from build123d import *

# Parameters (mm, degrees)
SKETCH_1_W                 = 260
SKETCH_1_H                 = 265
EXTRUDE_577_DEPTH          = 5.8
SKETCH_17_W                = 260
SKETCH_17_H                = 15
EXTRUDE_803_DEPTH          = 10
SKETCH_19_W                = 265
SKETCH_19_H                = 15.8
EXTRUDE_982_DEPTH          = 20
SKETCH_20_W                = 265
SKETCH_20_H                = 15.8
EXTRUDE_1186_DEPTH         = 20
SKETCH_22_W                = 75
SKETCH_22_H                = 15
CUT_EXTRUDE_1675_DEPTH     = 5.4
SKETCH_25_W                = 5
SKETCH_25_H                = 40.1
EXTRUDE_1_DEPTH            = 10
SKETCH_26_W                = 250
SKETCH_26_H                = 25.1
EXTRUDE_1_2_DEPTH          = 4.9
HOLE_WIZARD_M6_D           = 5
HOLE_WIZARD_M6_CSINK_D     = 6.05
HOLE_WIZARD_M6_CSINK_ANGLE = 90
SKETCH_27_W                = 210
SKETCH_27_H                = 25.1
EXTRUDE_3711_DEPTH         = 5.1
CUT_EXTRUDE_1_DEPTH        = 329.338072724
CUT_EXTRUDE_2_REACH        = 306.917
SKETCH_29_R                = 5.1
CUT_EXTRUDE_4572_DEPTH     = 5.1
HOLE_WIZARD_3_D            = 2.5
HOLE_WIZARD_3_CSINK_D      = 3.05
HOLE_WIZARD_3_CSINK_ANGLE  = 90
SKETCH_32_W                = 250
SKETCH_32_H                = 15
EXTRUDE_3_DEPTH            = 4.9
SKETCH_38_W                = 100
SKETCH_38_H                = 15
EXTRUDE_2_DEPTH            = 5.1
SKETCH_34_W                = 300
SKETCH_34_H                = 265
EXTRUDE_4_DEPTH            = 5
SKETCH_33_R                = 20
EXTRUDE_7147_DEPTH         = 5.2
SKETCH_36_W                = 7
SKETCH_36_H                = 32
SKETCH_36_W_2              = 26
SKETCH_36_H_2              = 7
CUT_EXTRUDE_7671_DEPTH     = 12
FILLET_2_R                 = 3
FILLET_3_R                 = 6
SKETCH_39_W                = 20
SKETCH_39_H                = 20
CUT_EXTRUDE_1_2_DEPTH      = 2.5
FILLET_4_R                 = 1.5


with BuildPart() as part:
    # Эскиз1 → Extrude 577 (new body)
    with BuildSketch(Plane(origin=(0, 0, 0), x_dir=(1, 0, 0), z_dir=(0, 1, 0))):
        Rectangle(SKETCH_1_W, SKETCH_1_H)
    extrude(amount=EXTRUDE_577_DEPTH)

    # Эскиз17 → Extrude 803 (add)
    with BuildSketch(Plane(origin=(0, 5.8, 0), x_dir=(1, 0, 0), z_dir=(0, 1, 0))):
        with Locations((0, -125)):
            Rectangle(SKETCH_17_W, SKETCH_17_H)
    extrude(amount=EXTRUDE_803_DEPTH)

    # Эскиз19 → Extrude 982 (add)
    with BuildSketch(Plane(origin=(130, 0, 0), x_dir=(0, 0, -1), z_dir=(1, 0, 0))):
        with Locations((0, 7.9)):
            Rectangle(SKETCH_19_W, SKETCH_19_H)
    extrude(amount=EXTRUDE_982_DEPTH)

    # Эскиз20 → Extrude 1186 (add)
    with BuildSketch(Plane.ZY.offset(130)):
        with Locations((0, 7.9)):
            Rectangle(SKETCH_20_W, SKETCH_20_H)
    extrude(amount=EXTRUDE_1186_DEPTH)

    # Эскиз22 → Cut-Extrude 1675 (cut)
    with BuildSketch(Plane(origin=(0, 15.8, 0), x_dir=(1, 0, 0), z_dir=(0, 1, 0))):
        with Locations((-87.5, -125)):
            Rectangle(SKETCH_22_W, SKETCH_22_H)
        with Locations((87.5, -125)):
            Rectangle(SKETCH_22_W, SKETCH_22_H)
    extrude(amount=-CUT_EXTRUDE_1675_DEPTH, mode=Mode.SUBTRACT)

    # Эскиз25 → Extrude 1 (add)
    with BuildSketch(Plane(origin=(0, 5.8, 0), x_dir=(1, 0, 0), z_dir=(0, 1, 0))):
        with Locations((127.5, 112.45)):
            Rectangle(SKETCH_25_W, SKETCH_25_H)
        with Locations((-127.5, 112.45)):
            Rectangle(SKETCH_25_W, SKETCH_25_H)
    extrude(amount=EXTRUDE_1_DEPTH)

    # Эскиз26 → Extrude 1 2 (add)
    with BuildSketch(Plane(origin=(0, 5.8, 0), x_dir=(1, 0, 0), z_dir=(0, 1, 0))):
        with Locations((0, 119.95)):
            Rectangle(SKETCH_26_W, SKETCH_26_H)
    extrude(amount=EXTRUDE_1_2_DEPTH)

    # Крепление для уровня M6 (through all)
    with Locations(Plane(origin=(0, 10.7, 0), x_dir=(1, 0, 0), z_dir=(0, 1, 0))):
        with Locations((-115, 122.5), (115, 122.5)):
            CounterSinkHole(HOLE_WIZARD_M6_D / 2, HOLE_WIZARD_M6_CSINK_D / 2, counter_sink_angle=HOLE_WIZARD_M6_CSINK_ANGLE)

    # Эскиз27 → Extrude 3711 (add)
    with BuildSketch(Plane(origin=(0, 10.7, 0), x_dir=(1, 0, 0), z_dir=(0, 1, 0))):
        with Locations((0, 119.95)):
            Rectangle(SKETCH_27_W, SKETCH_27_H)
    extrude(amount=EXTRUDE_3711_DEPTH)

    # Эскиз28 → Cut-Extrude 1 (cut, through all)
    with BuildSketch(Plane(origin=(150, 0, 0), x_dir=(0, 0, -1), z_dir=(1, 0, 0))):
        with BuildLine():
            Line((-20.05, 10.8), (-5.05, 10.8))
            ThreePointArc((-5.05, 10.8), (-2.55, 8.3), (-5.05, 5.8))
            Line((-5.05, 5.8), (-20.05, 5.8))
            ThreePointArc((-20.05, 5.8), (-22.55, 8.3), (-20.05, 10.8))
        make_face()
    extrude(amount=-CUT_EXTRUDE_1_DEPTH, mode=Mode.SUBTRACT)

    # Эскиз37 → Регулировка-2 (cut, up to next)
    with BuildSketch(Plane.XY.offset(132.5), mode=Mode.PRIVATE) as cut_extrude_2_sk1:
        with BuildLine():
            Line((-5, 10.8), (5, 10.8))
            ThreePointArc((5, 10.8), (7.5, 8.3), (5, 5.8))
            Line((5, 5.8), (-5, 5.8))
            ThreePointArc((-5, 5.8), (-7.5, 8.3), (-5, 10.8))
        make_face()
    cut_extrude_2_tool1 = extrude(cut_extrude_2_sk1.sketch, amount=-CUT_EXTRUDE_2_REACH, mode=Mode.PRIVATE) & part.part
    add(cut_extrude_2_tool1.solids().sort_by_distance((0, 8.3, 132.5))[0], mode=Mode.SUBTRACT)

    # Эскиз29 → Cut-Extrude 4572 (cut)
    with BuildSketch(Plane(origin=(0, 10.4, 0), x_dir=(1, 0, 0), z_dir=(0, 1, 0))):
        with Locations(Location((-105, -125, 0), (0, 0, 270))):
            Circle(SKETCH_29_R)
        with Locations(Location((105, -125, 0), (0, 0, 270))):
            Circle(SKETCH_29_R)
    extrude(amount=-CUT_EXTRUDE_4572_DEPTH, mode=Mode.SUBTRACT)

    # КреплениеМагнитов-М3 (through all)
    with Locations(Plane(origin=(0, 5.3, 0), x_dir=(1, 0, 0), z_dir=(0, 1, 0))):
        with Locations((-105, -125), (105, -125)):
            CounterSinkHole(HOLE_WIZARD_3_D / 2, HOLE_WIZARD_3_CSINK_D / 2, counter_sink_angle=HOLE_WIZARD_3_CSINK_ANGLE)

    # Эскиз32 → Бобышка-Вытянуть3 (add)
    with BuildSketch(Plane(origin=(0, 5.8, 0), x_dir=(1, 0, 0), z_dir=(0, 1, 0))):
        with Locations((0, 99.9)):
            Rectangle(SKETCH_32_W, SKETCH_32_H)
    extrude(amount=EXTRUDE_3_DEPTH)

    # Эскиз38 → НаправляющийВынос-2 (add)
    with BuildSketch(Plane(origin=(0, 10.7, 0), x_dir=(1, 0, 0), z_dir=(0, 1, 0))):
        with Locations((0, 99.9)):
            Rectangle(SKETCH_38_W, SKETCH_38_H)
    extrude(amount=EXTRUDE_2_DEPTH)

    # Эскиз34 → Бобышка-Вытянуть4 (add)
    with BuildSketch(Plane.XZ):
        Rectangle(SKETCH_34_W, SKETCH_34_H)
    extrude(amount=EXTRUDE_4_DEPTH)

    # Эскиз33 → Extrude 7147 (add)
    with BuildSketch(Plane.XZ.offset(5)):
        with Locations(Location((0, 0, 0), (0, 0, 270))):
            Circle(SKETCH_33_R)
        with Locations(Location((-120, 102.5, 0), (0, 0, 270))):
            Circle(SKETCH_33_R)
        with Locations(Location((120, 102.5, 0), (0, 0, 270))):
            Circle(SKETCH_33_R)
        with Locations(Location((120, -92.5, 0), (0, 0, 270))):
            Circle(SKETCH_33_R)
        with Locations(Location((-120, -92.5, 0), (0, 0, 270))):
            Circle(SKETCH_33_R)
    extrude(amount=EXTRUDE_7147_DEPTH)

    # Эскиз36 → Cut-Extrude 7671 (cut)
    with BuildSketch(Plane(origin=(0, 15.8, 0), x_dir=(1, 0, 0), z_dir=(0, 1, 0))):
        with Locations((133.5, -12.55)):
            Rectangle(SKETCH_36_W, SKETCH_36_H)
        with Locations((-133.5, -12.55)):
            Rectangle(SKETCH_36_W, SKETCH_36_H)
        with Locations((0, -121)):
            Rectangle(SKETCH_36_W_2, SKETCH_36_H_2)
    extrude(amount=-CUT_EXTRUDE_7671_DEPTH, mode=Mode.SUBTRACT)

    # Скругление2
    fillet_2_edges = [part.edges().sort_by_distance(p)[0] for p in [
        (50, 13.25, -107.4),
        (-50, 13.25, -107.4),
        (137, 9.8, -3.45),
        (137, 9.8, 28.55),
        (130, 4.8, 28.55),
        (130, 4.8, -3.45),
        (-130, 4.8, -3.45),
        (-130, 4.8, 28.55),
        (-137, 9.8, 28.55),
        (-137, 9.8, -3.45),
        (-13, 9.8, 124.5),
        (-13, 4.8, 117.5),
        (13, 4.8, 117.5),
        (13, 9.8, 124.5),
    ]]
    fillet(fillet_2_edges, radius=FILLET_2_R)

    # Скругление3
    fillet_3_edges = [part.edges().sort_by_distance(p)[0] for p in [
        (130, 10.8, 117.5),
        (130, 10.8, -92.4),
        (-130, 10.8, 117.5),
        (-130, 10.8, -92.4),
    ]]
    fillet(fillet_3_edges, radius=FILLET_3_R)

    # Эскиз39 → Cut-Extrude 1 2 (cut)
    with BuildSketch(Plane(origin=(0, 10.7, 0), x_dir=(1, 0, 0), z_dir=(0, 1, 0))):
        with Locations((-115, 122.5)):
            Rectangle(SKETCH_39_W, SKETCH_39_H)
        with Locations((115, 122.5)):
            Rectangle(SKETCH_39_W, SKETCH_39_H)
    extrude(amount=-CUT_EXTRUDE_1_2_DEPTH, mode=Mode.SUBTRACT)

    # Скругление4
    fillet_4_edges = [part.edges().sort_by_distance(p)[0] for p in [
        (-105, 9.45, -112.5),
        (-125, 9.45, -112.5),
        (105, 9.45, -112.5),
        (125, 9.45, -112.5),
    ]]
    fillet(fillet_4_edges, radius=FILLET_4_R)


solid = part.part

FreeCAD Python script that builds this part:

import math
import FreeCAD as App
import Part
import Sketcher

V = App.Vector


def edges_at(feature, points):
    """Names of the edges that pass closest to the given points."""
    edges = feature.Shape.Edges
    near = lambda p: min(range(len(edges)), key=lambda i: edges[i].distToShape(Part.Vertex(*p))[0])
    return sorted({f"Edge{near(p) + 1}" for p in points})

doc = App.newDocument("Part")
body = doc.addObject("PartDesign::Body", "Body")

sketch1 = doc.addObject("Sketcher::SketchObject", "Sketch")
body.addObject(sketch1)
sketch1.AttachmentSupport = (doc.XZ_Plane, [""])
sketch1.MapMode = "FlatFace"
sketch1.addGeometry(Part.LineSegment(V(-130, -132.5, 0), V(-130, 132.5, 0)), False)
sketch1.addGeometry(Part.LineSegment(V(-130, 132.5, 0), V(130, 132.5, 0)), False)
sketch1.addGeometry(Part.LineSegment(V(130, 132.5, 0), V(130, -132.5, 0)), False)
sketch1.addGeometry(Part.LineSegment(V(130, -132.5, 0), V(-130, -132.5, 0)), False)
sketch1.addConstraint(Sketcher.Constraint("Coincident", 0, 2, 1, 1))
sketch1.addConstraint(Sketcher.Constraint("Coincident", 1, 2, 2, 1))
sketch1.addConstraint(Sketcher.Constraint("Coincident", 2, 2, 3, 1))
sketch1.addConstraint(Sketcher.Constraint("Coincident", 3, 2, 0, 1))
sketch1.addConstraint(Sketcher.Constraint("Vertical", 0))
sketch1.addConstraint(Sketcher.Constraint("Horizontal", 1))
sketch1.addConstraint(Sketcher.Constraint("Vertical", 2))
sketch1.addConstraint(Sketcher.Constraint("Horizontal", 3))
sketch1.addConstraint(Sketcher.Constraint("Symmetric", 0, 2, 2, 2, -1, 1))
sketch1.addConstraint(Sketcher.Constraint("DistanceX", 1, 1, 1, 2, 260.0))
sketch1.addConstraint(Sketcher.Constraint("DistanceY", 0, 1, 0, 2, 265.0))
pad1 = doc.addObject("PartDesign::Pad", "Pad")
body.addObject(pad1)
pad1.Profile = sketch1
pad1.Length = 5.8
pad1.Reversed = True

sketch2 = doc.addObject("Sketcher::SketchObject", "Sketch001")
body.addObject(sketch2)
sketch2.AttachmentSupport = (doc.XZ_Plane, [""])
sketch2.MapMode = "FlatFace"
sketch2.AttachmentOffset = App.Placement(V(0, 0, -5.8), App.Rotation())
sketch2.addGeometry(Part.LineSegment(V(-130, 117.5, 0), V(-130, 132.5, 0)), False)
sketch2.addGeometry(Part.LineSegment(V(-130, 132.5, 0), V(130, 132.5, 0)), False)
sketch2.addGeometry(Part.LineSegment(V(130, 132.5, 0), V(130, 117.5, 0)), False)
sketch2.addGeometry(Part.LineSegment(V(130, 117.5, 0), V(-130, 117.5, 0)), False)
sketch2.addConstraint(Sketcher.Constraint("Coincident", 0, 2, 1, 1))
sketch2.addConstraint(Sketcher.Constraint("Coincident", 1, 2, 2, 1))
sketch2.addConstraint(Sketcher.Constraint("Coincident", 2, 2, 3, 1))
sketch2.addConstraint(Sketcher.Constraint("Coincident", 3, 2, 0, 1))
sketch2.addConstraint(Sketcher.Constraint("Vertical", 0))
sketch2.addConstraint(Sketcher.Constraint("Horizontal", 1))
sketch2.addConstraint(Sketcher.Constraint("Vertical", 2))
sketch2.addConstraint(Sketcher.Constraint("Horizontal", 3))
sketch2.addConstraint(Sketcher.Constraint("DistanceX", 1, 1, 1, 2, 260.0))
sketch2.addConstraint(Sketcher.Constraint("DistanceY", 0, 1, 0, 2, 15.0))
sketch2.addConstraint(Sketcher.Constraint("DistanceX", 0, 2, -1, 1, 130.0))
sketch2.addConstraint(Sketcher.Constraint("DistanceY", -1, 1, 0, 2, 132.5))
pad2 = doc.addObject("PartDesign::Pad", "Pad001")
body.addObject(pad2)
pad2.Profile = sketch2
pad2.Length = 10
pad2.Reversed = True

sketch3 = doc.addObject("Sketcher::SketchObject", "Sketch002")
body.addObject(sketch3)
sketch3.AttachmentSupport = (doc.YZ_Plane, [""])
sketch3.MapMode = "FlatFace"
sketch3.AttachmentOffset = App.Placement(V(0, 0, 130), App.Rotation())
sketch3.addGeometry(Part.LineSegment(V(15.8, 132.5, 0), V(0, 132.5, 0)), False)
sketch3.addGeometry(Part.LineSegment(V(0, 132.5, 0), V(0, -132.5, 0)), False)
sketch3.addGeometry(Part.LineSegment(V(0, -132.5, 0), V(15.8, -132.5, 0)), False)
sketch3.addGeometry(Part.LineSegment(V(15.8, -132.5, 0), V(15.8, 132.5, 0)), False)
sketch3.addConstraint(Sketcher.Constraint("Coincident", 0, 2, 1, 1))
sketch3.addConstraint(Sketcher.Constraint("Coincident", 1, 2, 2, 1))
sketch3.addConstraint(Sketcher.Constraint("Coincident", 2, 2, 3, 1))
sketch3.addConstraint(Sketcher.Constraint("Coincident", 3, 2, 0, 1))
sketch3.addConstraint(Sketcher.Constraint("Horizontal", 0))
sketch3.addConstraint(Sketcher.Constraint("Vertical", 1))
sketch3.addConstraint(Sketcher.Constraint("Horizontal", 2))
sketch3.addConstraint(Sketcher.Constraint("Vertical", 3))
sketch3.addConstraint(Sketcher.Constraint("Symmetric", 0, 2, 1, 2, -1, 1))
sketch3.addConstraint(Sketcher.Constraint("DistanceY", 1, 2, 1, 1, 265.0))
sketch3.addConstraint(Sketcher.Constraint("DistanceX", 0, 2, 0, 1, 15.8))
pad3 = doc.addObject("PartDesign::Pad", "Pad002")
body.addObject(pad3)
pad3.Profile = sketch3
pad3.Length = 20

sketch4 = doc.addObject("Sketcher::SketchObject", "Sketch003")
body.addObject(sketch4)
sketch4.AttachmentSupport = (doc.YZ_Plane, [""])
sketch4.MapMode = "FlatFace"
sketch4.AttachmentOffset = App.Placement(V(0, 0, -130), App.Rotation())
sketch4.addGeometry(Part.LineSegment(V(15.8, -132.5, 0), V(0, -132.5, 0)), False)
sketch4.addGeometry(Part.LineSegment(V(0, -132.5, 0), V(0, 132.5, 0)), False)
sketch4.addGeometry(Part.LineSegment(V(0, 132.5, 0), V(15.8, 132.5, 0)), False)
sketch4.addGeometry(Part.LineSegment(V(15.8, 132.5, 0), V(15.8, -132.5, 0)), False)
sketch4.addConstraint(Sketcher.Constraint("Coincident", 0, 2, 1, 1))
sketch4.addConstraint(Sketcher.Constraint("Coincident", 1, 2, 2, 1))
sketch4.addConstraint(Sketcher.Constraint("Coincident", 2, 2, 3, 1))
sketch4.addConstraint(Sketcher.Constraint("Coincident", 3, 2, 0, 1))
sketch4.addConstraint(Sketcher.Constraint("Horizontal", 0))
sketch4.addConstraint(Sketcher.Constraint("Vertical", 1))
sketch4.addConstraint(Sketcher.Constraint("Horizontal", 2))
sketch4.addConstraint(Sketcher.Constraint("Vertical", 3))
sketch4.addConstraint(Sketcher.Constraint("Symmetric", 0, 2, 1, 2, -1, 1))
sketch4.addConstraint(Sketcher.Constraint("DistanceY", 1, 1, 1, 2, 265.0))
sketch4.addConstraint(Sketcher.Constraint("DistanceX", 0, 2, 0, 1, 15.8))
pad4 = doc.addObject("PartDesign::Pad", "Pad003")
body.addObject(pad4)
pad4.Profile = sketch4
pad4.Length = 20
pad4.Reversed = True

sketch5 = doc.addObject("Sketcher::SketchObject", "Sketch004")
body.addObject(sketch5)
sketch5.AttachmentSupport = (doc.XZ_Plane, [""])
sketch5.MapMode = "FlatFace"
sketch5.AttachmentOffset = App.Placement(V(0, 0, -15.8), App.Rotation())
sketch5.addGeometry(Part.LineSegment(V(-125, 117.5, 0), V(-125, 132.5, 0)), False)
sketch5.addGeometry(Part.LineSegment(V(-125, 132.5, 0), V(-50, 132.5, 0)), False)
sketch5.addGeometry(Part.LineSegment(V(-50, 132.5, 0), V(-50, 117.5, 0)), False)
sketch5.addGeometry(Part.LineSegment(V(-50, 117.5, 0), V(-125, 117.5, 0)), False)
sketch5.addGeometry(Part.LineSegment(V(50, 117.5, 0), V(50, 132.5, 0)), False)
sketch5.addGeometry(Part.LineSegment(V(50, 132.5, 0), V(125, 132.5, 0)), False)
sketch5.addGeometry(Part.LineSegment(V(125, 132.5, 0), V(125, 117.5, 0)), False)
sketch5.addGeometry(Part.LineSegment(V(125, 117.5, 0), V(50, 117.5, 0)), False)
sketch5.addConstraint(Sketcher.Constraint("Coincident", 0, 2, 1, 1))
sketch5.addConstraint(Sketcher.Constraint("Coincident", 1, 2, 2, 1))
sketch5.addConstraint(Sketcher.Constraint("Coincident", 2, 2, 3, 1))
sketch5.addConstraint(Sketcher.Constraint("Coincident", 3, 2, 0, 1))
sketch5.addConstraint(Sketcher.Constraint("Coincident", 4, 2, 5, 1))
sketch5.addConstraint(Sketcher.Constraint("Coincident", 5, 2, 6, 1))
sketch5.addConstraint(Sketcher.Constraint("Coincident", 6, 2, 7, 1))
sketch5.addConstraint(Sketcher.Constraint("Coincident", 7, 2, 4, 1))
sketch5.addConstraint(Sketcher.Constraint("Vertical", 0))
sketch5.addConstraint(Sketcher.Constraint("Horizontal", 1))
sketch5.addConstraint(Sketcher.Constraint("Vertical", 2))
sketch5.addConstraint(Sketcher.Constraint("Horizontal", 3))
sketch5.addConstraint(Sketcher.Constraint("Vertical", 4))
sketch5.addConstraint(Sketcher.Constraint("Horizontal", 5))
sketch5.addConstraint(Sketcher.Constraint("Vertical", 6))
sketch5.addConstraint(Sketcher.Constraint("Horizontal", 7))
sketch5.addConstraint(Sketcher.Constraint("Symmetric", 1, 2, 4, 2, -2))
sketch5.addConstraint(Sketcher.Constraint("Symmetric", 3, 2, 6, 2, -2))
sketch5.addConstraint(Sketcher.Constraint("DistanceX", 1, 1, 1, 2, 75.0))
sketch5.addConstraint(Sketcher.Constraint("DistanceY", 0, 1, 0, 2, 15.0))
sketch5.addConstraint(Sketcher.Constraint("DistanceX", 0, 2, -1, 1, 125.0))
sketch5.addConstraint(Sketcher.Constraint("DistanceY", -1, 1, 0, 2, 132.5))
pocket1 = doc.addObject("PartDesign::Pocket", "Pocket")
body.addObject(pocket1)
pocket1.Profile = sketch5
pocket1.Length = 5.4
pocket1.Reversed = True

sketch6 = doc.addObject("Sketcher::SketchObject", "Sketch005")
body.addObject(sketch6)
sketch6.AttachmentSupport = (doc.XZ_Plane, [""])
sketch6.MapMode = "FlatFace"
sketch6.AttachmentOffset = App.Placement(V(0, 0, -5.8), App.Rotation())
sketch6.addGeometry(Part.LineSegment(V(125, -132.5, 0), V(125, -92.4, 0)), False)
sketch6.addGeometry(Part.LineSegment(V(125, -92.4, 0), V(130, -92.4, 0)), False)
sketch6.addGeometry(Part.LineSegment(V(130, -92.4, 0), V(130, -132.5, 0)), False)
sketch6.addGeometry(Part.LineSegment(V(130, -132.5, 0), V(125, -132.5, 0)), False)
sketch6.addGeometry(Part.LineSegment(V(-130, -132.5, 0), V(-130, -92.4, 0)), False)
sketch6.addGeometry(Part.LineSegment(V(-130, -92.4, 0), V(-125, -92.4, 0)), False)
sketch6.addGeometry(Part.LineSegment(V(-125, -92.4, 0), V(-125, -132.5, 0)), False)
sketch6.addGeometry(Part.LineSegment(V(-125, -132.5, 0), V(-130, -132.5, 0)), False)
sketch6.addConstraint(Sketcher.Constraint("Coincident", 0, 2, 1, 1))
sketch6.addConstraint(Sketcher.Constraint("Coincident", 1, 2, 2, 1))
sketch6.addConstraint(Sketcher.Constraint("Coincident", 2, 2, 3, 1))
sketch6.addConstraint(Sketcher.Constraint("Coincident", 3, 2, 0, 1))
sketch6.addConstraint(Sketcher.Constraint("Coincident", 4, 2, 5, 1))
sketch6.addConstraint(Sketcher.Constraint("Coincident", 5, 2, 6, 1))
sketch6.addConstraint(Sketcher.Constraint("Coincident", 6, 2, 7, 1))
sketch6.addConstraint(Sketcher.Constraint("Coincident", 7, 2, 4, 1))
sketch6.addConstraint(Sketcher.Constraint("Vertical", 0))
sketch6.addConstraint(Sketcher.Constraint("Horizontal", 1))
sketch6.addConstraint(Sketcher.Constraint("Vertical", 2))
sketch6.addConstraint(Sketcher.Constraint("Horizontal", 3))
sketch6.addConstraint(Sketcher.Constraint("Vertical", 4))
sketch6.addConstraint(Sketcher.Constraint("Horizontal", 5))
sketch6.addConstraint(Sketcher.Constraint("Vertical", 6))
sketch6.addConstraint(Sketcher.Constraint("Horizontal", 7))
sketch6.addConstraint(Sketcher.Constraint("Symmetric", 1, 2, 4, 2, -2))
sketch6.addConstraint(Sketcher.Constraint("Symmetric", 3, 2, 6, 2, -2))
sketch6.addConstraint(Sketcher.Constraint("DistanceX", 1, 1, 1, 2, 5.0))
sketch6.addConstraint(Sketcher.Constraint("DistanceY", 0, 1, 0, 2, 40.1))
sketch6.addConstraint(Sketcher.Constraint("DistanceX", -1, 1, 0, 2, 125.0))
sketch6.addConstraint(Sketcher.Constraint("DistanceY", 0, 2, -1, 1, 92.4))
pad5 = doc.addObject("PartDesign::Pad", "Pad004")
body.addObject(pad5)
pad5.Profile = sketch6
pad5.Length = 10
pad5.Reversed = True

sketch7 = doc.addObject("Sketcher::SketchObject", "Sketch006")
body.addObject(sketch7)
sketch7.AttachmentSupport = (doc.XZ_Plane, [""])
sketch7.MapMode = "FlatFace"
sketch7.AttachmentOffset = App.Placement(V(0, 0, -5.8), App.Rotation())
sketch7.addGeometry(Part.LineSegment(V(-125, -132.5, 0), V(-125, -107.4, 0)), False)
sketch7.addGeometry(Part.LineSegment(V(-125, -107.4, 0), V(125, -107.4, 0)), False)
sketch7.addGeometry(Part.LineSegment(V(125, -107.4, 0), V(125, -132.5, 0)), False)
sketch7.addGeometry(Part.LineSegment(V(125, -132.5, 0), V(-125, -132.5, 0)), False)
sketch7.addConstraint(Sketcher.Constraint("Coincident", 0, 2, 1, 1))
sketch7.addConstraint(Sketcher.Constraint("Coincident", 1, 2, 2, 1))
sketch7.addConstraint(Sketcher.Constraint("Coincident", 2, 2, 3, 1))
sketch7.addConstraint(Sketcher.Constraint("Coincident", 3, 2, 0, 1))
sketch7.addConstraint(Sketcher.Constraint("Vertical", 0))
sketch7.addConstraint(Sketcher.Constraint("Horizontal", 1))
sketch7.addConstraint(Sketcher.Constraint("Vertical", 2))
sketch7.addConstraint(Sketcher.Constraint("Horizontal", 3))
sketch7.addConstraint(Sketcher.Constraint("DistanceX", 1, 1, 1, 2, 250.0))
sketch7.addConstraint(Sketcher.Constraint("DistanceY", 0, 1, 0, 2, 25.1))
sketch7.addConstraint(Sketcher.Constraint("DistanceX", 0, 2, -1, 1, 125.0))
sketch7.addConstraint(Sketcher.Constraint("DistanceY", 0, 2, -1, 1, 107.4))
pad6 = doc.addObject("PartDesign::Pad", "Pad005")
body.addObject(pad6)
pad6.Profile = sketch7
pad6.Length = 4.9
pad6.Reversed = True

sketch8 = doc.addObject("Sketcher::SketchObject", "Sketch007")
body.addObject(sketch8)
sketch8.AttachmentSupport = (doc.XZ_Plane, [""])
sketch8.MapMode = "FlatFace"
sketch8.AttachmentOffset = App.Placement(V(0, 0, -10.7), App.Rotation())
sketch8.addGeometry(Part.Circle(V(-115, -122.5, 0), V(0, 0, 1), 2.5), False)
sketch8.addGeometry(Part.Circle(V(115, -122.5, 0), V(0, 0, 1), 2.5), False)
sketch8.addConstraint(Sketcher.Constraint("Equal", 0, 1))
sketch8.addConstraint(Sketcher.Constraint("Symmetric", 0, 3, 1, 3, -2))
sketch8.addConstraint(Sketcher.Constraint("Diameter", 0, 5.0))
sketch8.addConstraint(Sketcher.Constraint("DistanceX", 0, 3, -1, 1, 115.0))
sketch8.addConstraint(Sketcher.Constraint("DistanceY", 0, 3, -1, 1, 122.5))
doc.recompute()
hole = doc.addObject("PartDesign::Hole", "Hole")
body.addObject(hole)
hole.Profile = sketch8
hole.ThreadType = "None"
hole.Diameter = 5
hole.DepthType = "ThroughAll"
hole.HoleCutType = "Countersink"
hole.HoleCutDiameter = 6.05
hole.HoleCutCountersinkAngle = 90
hole.Reversed = True

sketch9 = doc.addObject("Sketcher::SketchObject", "Sketch008")
body.addObject(sketch9)
sketch9.AttachmentSupport = (doc.XZ_Plane, [""])
sketch9.MapMode = "FlatFace"
sketch9.AttachmentOffset = App.Placement(V(0, 0, -10.7), App.Rotation())
sketch9.addGeometry(Part.LineSegment(V(-105, -132.5, 0), V(-105, -107.4, 0)), False)
sketch9.addGeometry(Part.LineSegment(V(-105, -107.4, 0), V(105, -107.4, 0)), False)
sketch9.addGeometry(Part.LineSegment(V(105, -107.4, 0), V(105, -132.5, 0)), False)
sketch9.addGeometry(Part.LineSegment(V(105, -132.5, 0), V(-105, -132.5, 0)), False)
sketch9.addConstraint(Sketcher.Constraint("Coincident", 0, 2, 1, 1))
sketch9.addConstraint(Sketcher.Constraint("Coincident", 1, 2, 2, 1))
sketch9.addConstraint(Sketcher.Constraint("Coincident", 2, 2, 3, 1))
sketch9.addConstraint(Sketcher.Constraint("Coincident", 3, 2, 0, 1))
sketch9.addConstraint(Sketcher.Constraint("Vertical", 0))
sketch9.addConstraint(Sketcher.Constraint("Horizontal", 1))
sketch9.addConstraint(Sketcher.Constraint("Vertical", 2))
sketch9.addConstraint(Sketcher.Constraint("Horizontal", 3))
sketch9.addConstraint(Sketcher.Constraint("DistanceX", 1, 1, 1, 2, 210.0))
sketch9.addConstraint(Sketcher.Constraint("DistanceY", 0, 1, 0, 2, 25.1))
sketch9.addConstraint(Sketcher.Constraint("DistanceX", 0, 2, -1, 1, 105.0))
sketch9.addConstraint(Sketcher.Constraint("DistanceY", 0, 2, -1, 1, 107.4))
pad7 = doc.addObject("PartDesign::Pad", "Pad006")
body.addObject(pad7)
pad7.Profile = sketch9
pad7.Length = 5.1
pad7.Reversed = True

sketch10 = doc.addObject("Sketcher::SketchObject", "Sketch009")
body.addObject(sketch10)
sketch10.AttachmentSupport = (doc.YZ_Plane, [""])
sketch10.MapMode = "FlatFace"
sketch10.AttachmentOffset = App.Placement(V(0, 0, 150), App.Rotation())
sketch10.addGeometry(Part.LineSegment(V(10.8, 5.05, 0), V(10.8, 20.05, 0)), False)
sketch10.addGeometry(Part.ArcOfCircle(Part.Circle(V(8.3, 20.05, 0), V(0, 0, 1), 2.5), math.radians(0), math.radians(180)), False)
sketch10.addGeometry(Part.LineSegment(V(5.8, 20.05, 0), V(5.8, 5.05, 0)), False)
sketch10.addGeometry(Part.ArcOfCircle(Part.Circle(V(8.3, 5.05, 0), V(0, 0, 1), 2.5), math.radians(180), math.radians(360)), False)
sketch10.addConstraint(Sketcher.Constraint("Tangent", 0, 2, 1, 1))
sketch10.addConstraint(Sketcher.Constraint("Tangent", 1, 2, 2, 1))
sketch10.addConstraint(Sketcher.Constraint("Tangent", 2, 2, 3, 1))
sketch10.addConstraint(Sketcher.Constraint("Tangent", 3, 2, 0, 1))
sketch10.addConstraint(Sketcher.Constraint("Vertical", 0))
sketch10.addConstraint(Sketcher.Constraint("Vertical", 2))
sketch10.addConstraint(Sketcher.Constraint("Radius", 1, 2.5))
sketch10.addConstraint(Sketcher.Constraint("DistanceY", 0, 1, 0, 2, 15.0))
sketch10.addConstraint(Sketcher.Constraint("DistanceX", -1, 1, 1, 3, 8.3))
sketch10.addConstraint(Sketcher.Constraint("DistanceY", -1, 1, 1, 3, 20.05))
pocket2 = doc.addObject("PartDesign::Pocket", "Pocket001")
body.addObject(pocket2)
pocket2.Profile = sketch10
pocket2.Type = "ThroughAll"

sketch11 = doc.addObject("Sketcher::SketchObject", "Sketch010")
body.addObject(sketch11)
sketch11.AttachmentSupport = (doc.XY_Plane, [""])
sketch11.MapMode = "FlatFace"
sketch11.AttachmentOffset = App.Placement(V(0, 0, 132.5), App.Rotation())
sketch11.addGeometry(Part.LineSegment(V(5, 10.8, 0), V(-5, 10.8, 0)), False)
sketch11.addGeometry(Part.ArcOfCircle(Part.Circle(V(-5, 8.3, 0), V(0, 0, 1), 2.5), math.radians(90), math.radians(270)), False)
sketch11.addGeometry(Part.LineSegment(V(-5, 5.8, 0), V(5, 5.8, 0)), False)
sketch11.addGeometry(Part.ArcOfCircle(Part.Circle(V(5, 8.3, 0), V(0, 0, 1), 2.5), math.radians(-90), math.radians(90)), False)
sketch11.addConstraint(Sketcher.Constraint("Tangent", 0, 2, 1, 1))
sketch11.addConstraint(Sketcher.Constraint("Tangent", 1, 2, 2, 1))
sketch11.addConstraint(Sketcher.Constraint("Tangent", 2, 2, 3, 1))
sketch11.addConstraint(Sketcher.Constraint("Tangent", 3, 2, 0, 1))
sketch11.addConstraint(Sketcher.Constraint("Horizontal", 0))
sketch11.addConstraint(Sketcher.Constraint("Horizontal", 2))
sketch11.addConstraint(Sketcher.Constraint("Radius", 1, 2.5))
sketch11.addConstraint(Sketcher.Constraint("DistanceX", 0, 2, 0, 1, 10.0))
sketch11.addConstraint(Sketcher.Constraint("DistanceX", 1, 3, -1, 1, 5.0))
sketch11.addConstraint(Sketcher.Constraint("DistanceY", -1, 1, 1, 3, 8.3))
pocket3 = doc.addObject("PartDesign::Pocket", "Pocket002")
body.addObject(pocket3)
pocket3.Profile = sketch11
pocket3.Type = "UpToFirst"

sketch12 = doc.addObject("Sketcher::SketchObject", "Sketch011")
body.addObject(sketch12)
sketch12.AttachmentSupport = (doc.XZ_Plane, [""])
sketch12.MapMode = "FlatFace"
sketch12.AttachmentOffset = App.Placement(V(0, 0, -10.4), App.Rotation())
sketch12.addGeometry(Part.Circle(V(-105, 125, 0), V(0, 0, 1), 5.1), False)
sketch12.addGeometry(Part.Circle(V(105, 125, 0), V(0, 0, 1), 5.1), False)
sketch12.addConstraint(Sketcher.Constraint("Equal", 0, 1))
sketch12.addConstraint(Sketcher.Constraint("Symmetric", 0, 3, 1, 3, -2))
sketch12.addConstraint(Sketcher.Constraint("Diameter", 0, 10.2))
sketch12.addConstraint(Sketcher.Constraint("DistanceX", 0, 3, -1, 1, 105.0))
sketch12.addConstraint(Sketcher.Constraint("DistanceY", -1, 1, 0, 3, 125.0))
pocket4 = doc.addObject("PartDesign::Pocket", "Pocket003")
body.addObject(pocket4)
pocket4.Profile = sketch12
pocket4.Length = 5.1
pocket4.Reversed = True

sketch13 = doc.addObject("Sketcher::SketchObject", "Sketch012")
body.addObject(sketch13)
sketch13.AttachmentSupport = (doc.XZ_Plane, [""])
sketch13.MapMode = "FlatFace"
sketch13.AttachmentOffset = App.Placement(V(0, 0, -5.3), App.Rotation())
sketch13.addGeometry(Part.Circle(V(-105, 125, 0), V(0, 0, 1), 1.25), False)
sketch13.addGeometry(Part.Circle(V(105, 125, 0), V(0, 0, 1), 1.25), False)
sketch13.addConstraint(Sketcher.Constraint("Equal", 0, 1))
sketch13.addConstraint(Sketcher.Constraint("Symmetric", 0, 3, 1, 3, -2))
sketch13.addConstraint(Sketcher.Constraint("Diameter", 0, 2.5))
sketch13.addConstraint(Sketcher.Constraint("DistanceX", 0, 3, -1, 1, 105.0))
sketch13.addConstraint(Sketcher.Constraint("DistanceY", -1, 1, 0, 3, 125.0))
doc.recompute()
hole2 = doc.addObject("PartDesign::Hole", "Hole001")
body.addObject(hole2)
hole2.Profile = sketch13
hole2.ThreadType = "None"
hole2.Diameter = 2.5
hole2.DepthType = "ThroughAll"
hole2.HoleCutType = "Countersink"
hole2.HoleCutDiameter = 3.05
hole2.HoleCutCountersinkAngle = 90
hole2.Reversed = True

sketch14 = doc.addObject("Sketcher::SketchObject", "Sketch013")
body.addObject(sketch14)
sketch14.AttachmentSupport = (doc.XZ_Plane, [""])
sketch14.MapMode = "FlatFace"
sketch14.AttachmentOffset = App.Placement(V(0, 0, -5.8), App.Rotation())
sketch14.addGeometry(Part.LineSegment(V(-125, -107.4, 0), V(-125, -92.4, 0)), False)
sketch14.addGeometry(Part.LineSegment(V(-125, -92.4, 0), V(125, -92.4, 0)), False)
sketch14.addGeometry(Part.LineSegment(V(125, -92.4, 0), V(125, -107.4, 0)), False)
sketch14.addGeometry(Part.LineSegment(V(125, -107.4, 0), V(-125, -107.4, 0)), False)
sketch14.addConstraint(Sketcher.Constraint("Coincident", 0, 2, 1, 1))
sketch14.addConstraint(Sketcher.Constraint("Coincident", 1, 2, 2, 1))
sketch14.addConstraint(Sketcher.Constraint("Coincident", 2, 2, 3, 1))
sketch14.addConstraint(Sketcher.Constraint("Coincident", 3, 2, 0, 1))
sketch14.addConstraint(Sketcher.Constraint("Vertical", 0))
sketch14.addConstraint(Sketcher.Constraint("Horizontal", 1))
sketch14.addConstraint(Sketcher.Constraint("Vertical", 2))
sketch14.addConstraint(Sketcher.Constraint("Horizontal", 3))
sketch14.addConstraint(Sketcher.Constraint("DistanceX", 1, 1, 1, 2, 250.0))
sketch14.addConstraint(Sketcher.Constraint("DistanceY", 0, 1, 0, 2, 15.0))
sketch14.addConstraint(Sketcher.Constraint("DistanceX", 0, 2, -1, 1, 125.0))
sketch14.addConstraint(Sketcher.Constraint("DistanceY", 0, 2, -1, 1, 92.4))
pad8 = doc.addObject("PartDesign::Pad", "Pad007")
body.addObject(pad8)
pad8.Profile = sketch14
pad8.Length = 4.9
pad8.Reversed = True

sketch15 = doc.addObject("Sketcher::SketchObject", "Sketch014")
body.addObject(sketch15)
sketch15.AttachmentSupport = (doc.XZ_Plane, [""])
sketch15.MapMode = "FlatFace"
sketch15.AttachmentOffset = App.Placement(V(0, 0, -10.7), App.Rotation())
sketch15.addGeometry(Part.LineSegment(V(-50, -107.4, 0), V(-50, -92.4, 0)), False)
sketch15.addGeometry(Part.LineSegment(V(-50, -92.4, 0), V(50, -92.4, 0)), False)
sketch15.addGeometry(Part.LineSegment(V(50, -92.4, 0), V(50, -107.4, 0)), False)
sketch15.addGeometry(Part.LineSegment(V(50, -107.4, 0), V(-50, -107.4, 0)), False)
sketch15.addConstraint(Sketcher.Constraint("Coincident", 0, 2, 1, 1))
sketch15.addConstraint(Sketcher.Constraint("Coincident", 1, 2, 2, 1))
sketch15.addConstraint(Sketcher.Constraint("Coincident", 2, 2, 3, 1))
sketch15.addConstraint(Sketcher.Constraint("Coincident", 3, 2, 0, 1))
sketch15.addConstraint(Sketcher.Constraint("Vertical", 0))
sketch15.addConstraint(Sketcher.Constraint("Horizontal", 1))
sketch15.addConstraint(Sketcher.Constraint("Vertical", 2))
sketch15.addConstraint(Sketcher.Constraint("Horizontal", 3))
sketch15.addConstraint(Sketcher.Constraint("DistanceX", 1, 1, 1, 2, 100.0))
sketch15.addConstraint(Sketcher.Constraint("DistanceY", 0, 1, 0, 2, 15.0))
sketch15.addConstraint(Sketcher.Constraint("DistanceX", 0, 2, -1, 1, 50.0))
sketch15.addConstraint(Sketcher.Constraint("DistanceY", 0, 2, -1, 1, 92.4))
pad9 = doc.addObject("PartDesign::Pad", "Pad008")
body.addObject(pad9)
pad9.Profile = sketch15
pad9.Length = 5.1
pad9.Reversed = True

sketch16 = doc.addObject("Sketcher::SketchObject", "Sketch015")
body.addObject(sketch16)
sketch16.AttachmentSupport = (doc.XZ_Plane, [""])
sketch16.MapMode = "FlatFace"
sketch16.addGeometry(Part.LineSegment(V(-150, 132.5, 0), V(-150, -132.5, 0)), False)
sketch16.addGeometry(Part.LineSegment(V(-150, -132.5, 0), V(150, -132.5, 0)), False)
sketch16.addGeometry(Part.LineSegment(V(150, -132.5, 0), V(150, 132.5, 0)), False)
sketch16.addGeometry(Part.LineSegment(V(150, 132.5, 0), V(-150, 132.5, 0)), False)
sketch16.addConstraint(Sketcher.Constraint("Coincident", 0, 2, 1, 1))
sketch16.addConstraint(Sketcher.Constraint("Coincident", 1, 2, 2, 1))
sketch16.addConstraint(Sketcher.Constraint("Coincident", 2, 2, 3, 1))
sketch16.addConstraint(Sketcher.Constraint("Coincident", 3, 2, 0, 1))
sketch16.addConstraint(Sketcher.Constraint("Vertical", 0))
sketch16.addConstraint(Sketcher.Constraint("Horizontal", 1))
sketch16.addConstraint(Sketcher.Constraint("Vertical", 2))
sketch16.addConstraint(Sketcher.Constraint("Horizontal", 3))
sketch16.addConstraint(Sketcher.Constraint("Symmetric", 0, 2, 2, 2, -1, 1))
sketch16.addConstraint(Sketcher.Constraint("DistanceX", 1, 1, 1, 2, 300.0))
sketch16.addConstraint(Sketcher.Constraint("DistanceY", 0, 2, 0, 1, 265.0))
pad10 = doc.addObject("PartDesign::Pad", "Pad009")
body.addObject(pad10)
pad10.Profile = sketch16
pad10.Length = 5

sketch17 = doc.addObject("Sketcher::SketchObject", "Sketch016")
body.addObject(sketch17)
sketch17.AttachmentSupport = (doc.XZ_Plane, [""])
sketch17.MapMode = "FlatFace"
sketch17.AttachmentOffset = App.Placement(V(0, 0, 5), App.Rotation())
sketch17.addGeometry(Part.Circle(V(0, 0, 0), V(0, 0, 1), 20), False)
sketch17.addGeometry(Part.Circle(V(-120, 102.5, 0), V(0, 0, 1), 20), False)
sketch17.addGeometry(Part.Circle(V(120, 102.5, 0), V(0, 0, 1), 20), False)
sketch17.addGeometry(Part.Circle(V(120, -92.5, 0), V(0, 0, 1), 20), False)
sketch17.addGeometry(Part.Circle(V(-120, -92.5, 0), V(0, 0, 1), 20), False)
sketch17.addConstraint(Sketcher.Constraint("Coincident", 0, 3, -1, 1))
sketch17.addConstraint(Sketcher.Constraint("Equal", 0, 1))
sketch17.addConstraint(Sketcher.Constraint("Equal", 1, 2))
sketch17.addConstraint(Sketcher.Constraint("Equal", 2, 3))
sketch17.addConstraint(Sketcher.Constraint("Equal", 3, 4))
sketch17.addConstraint(Sketcher.Constraint("Symmetric", 1, 3, 2, 3, -2))
sketch17.addConstraint(Sketcher.Constraint("Symmetric", 3, 3, 4, 3, -2))
sketch17.addConstraint(Sketcher.Constraint("Vertical", 2, 3, 3, 3))
sketch17.addConstraint(Sketcher.Constraint("Diameter", 0, 40.0))
sketch17.addConstraint(Sketcher.Constraint("DistanceX", 1, 3, -1, 1, 120.0))
sketch17.addConstraint(Sketcher.Constraint("DistanceY", 3, 3, 2, 3, 195.0))
sketch17.addConstraint(Sketcher.Constraint("DistanceY", -1, 1, 1, 3, 102.5))
pad11 = doc.addObject("PartDesign::Pad", "Pad010")
body.addObject(pad11)
pad11.Profile = sketch17
pad11.Length = 5.2

sketch18 = doc.addObject("Sketcher::SketchObject", "Sketch017")
body.addObject(sketch18)
sketch18.AttachmentSupport = (doc.XZ_Plane, [""])
sketch18.MapMode = "FlatFace"
sketch18.AttachmentOffset = App.Placement(V(0, 0, -15.8), App.Rotation())
sketch18.addGeometry(Part.LineSegment(V(130, -3.45, 0), V(130, 28.55, 0)), False)
sketch18.addGeometry(Part.LineSegment(V(130, 28.55, 0), V(137, 28.55, 0)), False)
sketch18.addGeometry(Part.LineSegment(V(137, 28.55, 0), V(137, -3.45, 0)), False)
sketch18.addGeometry(Part.LineSegment(V(137, -3.45, 0), V(130, -3.45, 0)), False)
sketch18.addGeometry(Part.LineSegment(V(-137, -3.45, 0), V(-137, 28.55, 0)), False)
sketch18.addGeometry(Part.LineSegment(V(-137, 28.55, 0), V(-130, 28.55, 0)), False)
sketch18.addGeometry(Part.LineSegment(V(-130, 28.55, 0), V(-130, -3.45, 0)), False)
sketch18.addGeometry(Part.LineSegment(V(-130, -3.45, 0), V(-137, -3.45, 0)), False)
sketch18.addGeometry(Part.LineSegment(V(-13, 117.5, 0), V(-13, 124.5, 0)), False)
sketch18.addGeometry(Part.LineSegment(V(-13, 124.5, 0), V(13, 124.5, 0)), False)
sketch18.addGeometry(Part.LineSegment(V(13, 124.5, 0), V(13, 117.5, 0)), False)
sketch18.addGeometry(Part.LineSegment(V(13, 117.5, 0), V(-13, 117.5, 0)), False)
sketch18.addConstraint(Sketcher.Constraint("Coincident", 0, 2, 1, 1))
sketch18.addConstraint(Sketcher.Constraint("Coincident", 1, 2, 2, 1))
sketch18.addConstraint(Sketcher.Constraint("Coincident", 2, 2, 3, 1))
sketch18.addConstraint(Sketcher.Constraint("Coincident", 3, 2, 0, 1))
sketch18.addConstraint(Sketcher.Constraint("Coincident", 4, 2, 5, 1))
sketch18.addConstraint(Sketcher.Constraint("Coincident", 5, 2, 6, 1))
sketch18.addConstraint(Sketcher.Constraint("Coincident", 6, 2, 7, 1))
sketch18.addConstraint(Sketcher.Constraint("Coincident", 7, 2, 4, 1))
sketch18.addConstraint(Sketcher.Constraint("Coincident", 8, 2, 9, 1))
sketch18.addConstraint(Sketcher.Constraint("Coincident", 9, 2, 10, 1))
sketch18.addConstraint(Sketcher.Constraint("Coincident", 10, 2, 11, 1))
sketch18.addConstraint(Sketcher.Constraint("Coincident", 11, 2, 8, 1))
sketch18.addConstraint(Sketcher.Constraint("Vertical", 0))
sketch18.addConstraint(Sketcher.Constraint("Horizontal", 1))
sketch18.addConstraint(Sketcher.Constraint("Vertical", 2))
sketch18.addConstraint(Sketcher.Constraint("Horizontal", 3))
sketch18.addConstraint(Sketcher.Constraint("Vertical", 4))
sketch18.addConstraint(Sketcher.Constraint("Horizontal", 5))
sketch18.addConstraint(Sketcher.Constraint("Vertical", 6))
sketch18.addConstraint(Sketcher.Constraint("Horizontal", 7))
sketch18.addConstraint(Sketcher.Constraint("Vertical", 8))
sketch18.addConstraint(Sketcher.Constraint("Horizontal", 9))
sketch18.addConstraint(Sketcher.Constraint("Vertical", 10))
sketch18.addConstraint(Sketcher.Constraint("Horizontal", 11))
sketch18.addConstraint(Sketcher.Constraint("Symmetric", 1, 2, 4, 2, -2))
sketch18.addConstraint(Sketcher.Constraint("Symmetric", 3, 2, 6, 2, -2))
sketch18.addConstraint(Sketcher.Constraint("Equal", 7, 8))
sketch18.addConstraint(Sketcher.Constraint("DistanceX", 1, 1, 1, 2, 7.0))
sketch18.addConstraint(Sketcher.Constraint("DistanceX", 9, 1, 9, 2, 26.0))
sketch18.addConstraint(Sketcher.Constraint("DistanceY", 0, 1, 0, 2, 32.0))
sketch18.addConstraint(Sketcher.Constraint("DistanceX", -1, 1, 0, 2, 130.0))
sketch18.addConstraint(Sketcher.Constraint("DistanceX", 8, 2, -1, 1, 13.0))
sketch18.addConstraint(Sketcher.Constraint("DistanceY", -1, 1, 8, 2, 124.5))
sketch18.addConstraint(Sketcher.Constraint("DistanceY", -1, 1, 0, 2, 28.55))
pocket5 = doc.addObject("PartDesign::Pocket", "Pocket004")
body.addObject(pocket5)
pocket5.Profile = sketch18
pocket5.Length = 12
pocket5.Reversed = True
doc.recompute()

fillet = doc.addObject("PartDesign::Fillet", "Fillet")
body.addObject(fillet)
fillet.Base = (pocket5, edges_at(pocket5, [
    (50, 13.25, -107.4),
    (-50, 13.25, -107.4),
    (137, 9.8, -3.45),
    (137, 9.8, 28.55),
    (130, 4.8, 28.55),
    (130, 4.8, -3.45),
    (-130, 4.8, -3.45),
    (-130, 4.8, 28.55),
    (-137, 9.8, 28.55),
    (-137, 9.8, -3.45),
    (-13, 9.8, 124.5),
    (-13, 4.8, 117.5),
    (13, 4.8, 117.5),
    (13, 9.8, 124.5),
]))
fillet.Radius = 3
doc.recompute()

fillet2 = doc.addObject("PartDesign::Fillet", "Fillet001")
body.addObject(fillet2)
fillet2.Base = (fillet, edges_at(fillet, [
    (130, 10.8, 117.5),
    (130, 10.8, -92.4),
    (-130, 10.8, 117.5),
    (-130, 10.8, -92.4),
]))
fillet2.Radius = 6

sketch19 = doc.addObject("Sketcher::SketchObject", "Sketch018")
body.addObject(sketch19)
sketch19.AttachmentSupport = (doc.XZ_Plane, [""])
sketch19.MapMode = "FlatFace"
sketch19.AttachmentOffset = App.Placement(V(0, 0, -10.7), App.Rotation())
sketch19.addGeometry(Part.LineSegment(V(-125, -132.5, 0), V(-125, -112.5, 0)), False)
sketch19.addGeometry(Part.LineSegment(V(-125, -112.5, 0), V(-105, -112.5, 0)), False)
sketch19.addGeometry(Part.LineSegment(V(-105, -112.5, 0), V(-105, -132.5, 0)), False)
sketch19.addGeometry(Part.LineSegment(V(-105, -132.5, 0), V(-125, -132.5, 0)), False)
sketch19.addGeometry(Part.LineSegment(V(105, -132.5, 0), V(105, -112.5, 0)), False)
sketch19.addGeometry(Part.LineSegment(V(105, -112.5, 0), V(125, -112.5, 0)), False)
sketch19.addGeometry(Part.LineSegment(V(125, -112.5, 0), V(125, -132.5, 0)), False)
sketch19.addGeometry(Part.LineSegment(V(125, -132.5, 0), V(105, -132.5, 0)), False)
sketch19.addConstraint(Sketcher.Constraint("Coincident", 0, 2, 1, 1))
sketch19.addConstraint(Sketcher.Constraint("Coincident", 1, 2, 2, 1))
sketch19.addConstraint(Sketcher.Constraint("Coincident", 2, 2, 3, 1))
sketch19.addConstraint(Sketcher.Constraint("Coincident", 3, 2, 0, 1))
sketch19.addConstraint(Sketcher.Constraint("Coincident", 4, 2, 5, 1))
sketch19.addConstraint(Sketcher.Constraint("Coincident", 5, 2, 6, 1))
sketch19.addConstraint(Sketcher.Constraint("Coincident", 6, 2, 7, 1))
sketch19.addConstraint(Sketcher.Constraint("Coincident", 7, 2, 4, 1))
sketch19.addConstraint(Sketcher.Constraint("Vertical", 0))
sketch19.addConstraint(Sketcher.Constraint("Horizontal", 1))
sketch19.addConstraint(Sketcher.Constraint("Vertical", 2))
sketch19.addConstraint(Sketcher.Constraint("Horizontal", 3))
sketch19.addConstraint(Sketcher.Constraint("Vertical", 4))
sketch19.addConstraint(Sketcher.Constraint("Horizontal", 5))
sketch19.addConstraint(Sketcher.Constraint("Vertical", 6))
sketch19.addConstraint(Sketcher.Constraint("Horizontal", 7))
sketch19.addConstraint(Sketcher.Constraint("Symmetric", 1, 2, 4, 2, -2))
sketch19.addConstraint(Sketcher.Constraint("Symmetric", 3, 2, 6, 2, -2))
sketch19.addConstraint(Sketcher.Constraint("Equal", 7, 0))
sketch19.addConstraint(Sketcher.Constraint("DistanceX", 1, 1, 1, 2, 20.0))
sketch19.addConstraint(Sketcher.Constraint("DistanceX", 0, 2, -1, 1, 125.0))
sketch19.addConstraint(Sketcher.Constraint("DistanceY", 0, 2, -1, 1, 112.5))
pocket6 = doc.addObject("PartDesign::Pocket", "Pocket005")
body.addObject(pocket6)
pocket6.Profile = sketch19
pocket6.Length = 2.5
pocket6.Reversed = True
doc.recompute()

fillet3 = doc.addObject("PartDesign::Fillet", "Fillet002")
body.addObject(fillet3)
fillet3.Base = (pocket6, edges_at(pocket6, [
    (-105, 9.45, -112.5),
    (-125, 9.45, -112.5),
    (105, 9.45, -112.5),
    (125, 9.45, -112.5),
]))
fillet3.Radius = 1.5

doc.recompute()
